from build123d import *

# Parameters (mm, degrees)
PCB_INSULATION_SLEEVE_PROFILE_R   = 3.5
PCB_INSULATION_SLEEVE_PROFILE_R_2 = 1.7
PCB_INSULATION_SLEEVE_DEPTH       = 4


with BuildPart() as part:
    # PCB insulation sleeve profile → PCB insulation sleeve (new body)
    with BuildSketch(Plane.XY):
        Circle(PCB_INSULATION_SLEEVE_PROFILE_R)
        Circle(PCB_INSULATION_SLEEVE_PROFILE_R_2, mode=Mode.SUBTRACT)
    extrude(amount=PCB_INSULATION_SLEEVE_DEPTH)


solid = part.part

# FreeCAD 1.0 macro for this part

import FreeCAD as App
import Part
import Sketcher
from FreeCAD import Vector
Q = App.Units.Quantity

doc = App.newDocument("Part")
body = doc.addObject("PartDesign::Body", "Body")

# Sketch on XY plane
sketch1 = doc.addObject("Sketcher::SketchObject", "Sketch")
body.addObject(sketch1)
sketch1.AttachmentSupport = (doc.XY_Plane, [""])
sketch1.MapMode = "FlatFace"
sketch1.addGeometry([
    Part.Circle(Vector(0, 0, 0), Vector(0, 0, 1), 3.5),
    Part.Circle(Vector(0, 0, 0), Vector(0, 0, 1), 1.7),
], False)
sketch1.addConstraint([
    Sketcher.Constraint("Coincident", 0, 3, -1, 1),
    Sketcher.Constraint("Coincident", 1, 3, -1, 1),
    Sketcher.Constraint("Diameter", 0, Q("7 mm")),
    Sketcher.Constraint("Diameter", 1, Q("3.4 mm")),
])
pad1 = doc.addObject("PartDesign::Pad", "Pad")
body.addObject(pad1)
pad1.Profile = sketch1
pad1.Length = 4

doc.recompute()
